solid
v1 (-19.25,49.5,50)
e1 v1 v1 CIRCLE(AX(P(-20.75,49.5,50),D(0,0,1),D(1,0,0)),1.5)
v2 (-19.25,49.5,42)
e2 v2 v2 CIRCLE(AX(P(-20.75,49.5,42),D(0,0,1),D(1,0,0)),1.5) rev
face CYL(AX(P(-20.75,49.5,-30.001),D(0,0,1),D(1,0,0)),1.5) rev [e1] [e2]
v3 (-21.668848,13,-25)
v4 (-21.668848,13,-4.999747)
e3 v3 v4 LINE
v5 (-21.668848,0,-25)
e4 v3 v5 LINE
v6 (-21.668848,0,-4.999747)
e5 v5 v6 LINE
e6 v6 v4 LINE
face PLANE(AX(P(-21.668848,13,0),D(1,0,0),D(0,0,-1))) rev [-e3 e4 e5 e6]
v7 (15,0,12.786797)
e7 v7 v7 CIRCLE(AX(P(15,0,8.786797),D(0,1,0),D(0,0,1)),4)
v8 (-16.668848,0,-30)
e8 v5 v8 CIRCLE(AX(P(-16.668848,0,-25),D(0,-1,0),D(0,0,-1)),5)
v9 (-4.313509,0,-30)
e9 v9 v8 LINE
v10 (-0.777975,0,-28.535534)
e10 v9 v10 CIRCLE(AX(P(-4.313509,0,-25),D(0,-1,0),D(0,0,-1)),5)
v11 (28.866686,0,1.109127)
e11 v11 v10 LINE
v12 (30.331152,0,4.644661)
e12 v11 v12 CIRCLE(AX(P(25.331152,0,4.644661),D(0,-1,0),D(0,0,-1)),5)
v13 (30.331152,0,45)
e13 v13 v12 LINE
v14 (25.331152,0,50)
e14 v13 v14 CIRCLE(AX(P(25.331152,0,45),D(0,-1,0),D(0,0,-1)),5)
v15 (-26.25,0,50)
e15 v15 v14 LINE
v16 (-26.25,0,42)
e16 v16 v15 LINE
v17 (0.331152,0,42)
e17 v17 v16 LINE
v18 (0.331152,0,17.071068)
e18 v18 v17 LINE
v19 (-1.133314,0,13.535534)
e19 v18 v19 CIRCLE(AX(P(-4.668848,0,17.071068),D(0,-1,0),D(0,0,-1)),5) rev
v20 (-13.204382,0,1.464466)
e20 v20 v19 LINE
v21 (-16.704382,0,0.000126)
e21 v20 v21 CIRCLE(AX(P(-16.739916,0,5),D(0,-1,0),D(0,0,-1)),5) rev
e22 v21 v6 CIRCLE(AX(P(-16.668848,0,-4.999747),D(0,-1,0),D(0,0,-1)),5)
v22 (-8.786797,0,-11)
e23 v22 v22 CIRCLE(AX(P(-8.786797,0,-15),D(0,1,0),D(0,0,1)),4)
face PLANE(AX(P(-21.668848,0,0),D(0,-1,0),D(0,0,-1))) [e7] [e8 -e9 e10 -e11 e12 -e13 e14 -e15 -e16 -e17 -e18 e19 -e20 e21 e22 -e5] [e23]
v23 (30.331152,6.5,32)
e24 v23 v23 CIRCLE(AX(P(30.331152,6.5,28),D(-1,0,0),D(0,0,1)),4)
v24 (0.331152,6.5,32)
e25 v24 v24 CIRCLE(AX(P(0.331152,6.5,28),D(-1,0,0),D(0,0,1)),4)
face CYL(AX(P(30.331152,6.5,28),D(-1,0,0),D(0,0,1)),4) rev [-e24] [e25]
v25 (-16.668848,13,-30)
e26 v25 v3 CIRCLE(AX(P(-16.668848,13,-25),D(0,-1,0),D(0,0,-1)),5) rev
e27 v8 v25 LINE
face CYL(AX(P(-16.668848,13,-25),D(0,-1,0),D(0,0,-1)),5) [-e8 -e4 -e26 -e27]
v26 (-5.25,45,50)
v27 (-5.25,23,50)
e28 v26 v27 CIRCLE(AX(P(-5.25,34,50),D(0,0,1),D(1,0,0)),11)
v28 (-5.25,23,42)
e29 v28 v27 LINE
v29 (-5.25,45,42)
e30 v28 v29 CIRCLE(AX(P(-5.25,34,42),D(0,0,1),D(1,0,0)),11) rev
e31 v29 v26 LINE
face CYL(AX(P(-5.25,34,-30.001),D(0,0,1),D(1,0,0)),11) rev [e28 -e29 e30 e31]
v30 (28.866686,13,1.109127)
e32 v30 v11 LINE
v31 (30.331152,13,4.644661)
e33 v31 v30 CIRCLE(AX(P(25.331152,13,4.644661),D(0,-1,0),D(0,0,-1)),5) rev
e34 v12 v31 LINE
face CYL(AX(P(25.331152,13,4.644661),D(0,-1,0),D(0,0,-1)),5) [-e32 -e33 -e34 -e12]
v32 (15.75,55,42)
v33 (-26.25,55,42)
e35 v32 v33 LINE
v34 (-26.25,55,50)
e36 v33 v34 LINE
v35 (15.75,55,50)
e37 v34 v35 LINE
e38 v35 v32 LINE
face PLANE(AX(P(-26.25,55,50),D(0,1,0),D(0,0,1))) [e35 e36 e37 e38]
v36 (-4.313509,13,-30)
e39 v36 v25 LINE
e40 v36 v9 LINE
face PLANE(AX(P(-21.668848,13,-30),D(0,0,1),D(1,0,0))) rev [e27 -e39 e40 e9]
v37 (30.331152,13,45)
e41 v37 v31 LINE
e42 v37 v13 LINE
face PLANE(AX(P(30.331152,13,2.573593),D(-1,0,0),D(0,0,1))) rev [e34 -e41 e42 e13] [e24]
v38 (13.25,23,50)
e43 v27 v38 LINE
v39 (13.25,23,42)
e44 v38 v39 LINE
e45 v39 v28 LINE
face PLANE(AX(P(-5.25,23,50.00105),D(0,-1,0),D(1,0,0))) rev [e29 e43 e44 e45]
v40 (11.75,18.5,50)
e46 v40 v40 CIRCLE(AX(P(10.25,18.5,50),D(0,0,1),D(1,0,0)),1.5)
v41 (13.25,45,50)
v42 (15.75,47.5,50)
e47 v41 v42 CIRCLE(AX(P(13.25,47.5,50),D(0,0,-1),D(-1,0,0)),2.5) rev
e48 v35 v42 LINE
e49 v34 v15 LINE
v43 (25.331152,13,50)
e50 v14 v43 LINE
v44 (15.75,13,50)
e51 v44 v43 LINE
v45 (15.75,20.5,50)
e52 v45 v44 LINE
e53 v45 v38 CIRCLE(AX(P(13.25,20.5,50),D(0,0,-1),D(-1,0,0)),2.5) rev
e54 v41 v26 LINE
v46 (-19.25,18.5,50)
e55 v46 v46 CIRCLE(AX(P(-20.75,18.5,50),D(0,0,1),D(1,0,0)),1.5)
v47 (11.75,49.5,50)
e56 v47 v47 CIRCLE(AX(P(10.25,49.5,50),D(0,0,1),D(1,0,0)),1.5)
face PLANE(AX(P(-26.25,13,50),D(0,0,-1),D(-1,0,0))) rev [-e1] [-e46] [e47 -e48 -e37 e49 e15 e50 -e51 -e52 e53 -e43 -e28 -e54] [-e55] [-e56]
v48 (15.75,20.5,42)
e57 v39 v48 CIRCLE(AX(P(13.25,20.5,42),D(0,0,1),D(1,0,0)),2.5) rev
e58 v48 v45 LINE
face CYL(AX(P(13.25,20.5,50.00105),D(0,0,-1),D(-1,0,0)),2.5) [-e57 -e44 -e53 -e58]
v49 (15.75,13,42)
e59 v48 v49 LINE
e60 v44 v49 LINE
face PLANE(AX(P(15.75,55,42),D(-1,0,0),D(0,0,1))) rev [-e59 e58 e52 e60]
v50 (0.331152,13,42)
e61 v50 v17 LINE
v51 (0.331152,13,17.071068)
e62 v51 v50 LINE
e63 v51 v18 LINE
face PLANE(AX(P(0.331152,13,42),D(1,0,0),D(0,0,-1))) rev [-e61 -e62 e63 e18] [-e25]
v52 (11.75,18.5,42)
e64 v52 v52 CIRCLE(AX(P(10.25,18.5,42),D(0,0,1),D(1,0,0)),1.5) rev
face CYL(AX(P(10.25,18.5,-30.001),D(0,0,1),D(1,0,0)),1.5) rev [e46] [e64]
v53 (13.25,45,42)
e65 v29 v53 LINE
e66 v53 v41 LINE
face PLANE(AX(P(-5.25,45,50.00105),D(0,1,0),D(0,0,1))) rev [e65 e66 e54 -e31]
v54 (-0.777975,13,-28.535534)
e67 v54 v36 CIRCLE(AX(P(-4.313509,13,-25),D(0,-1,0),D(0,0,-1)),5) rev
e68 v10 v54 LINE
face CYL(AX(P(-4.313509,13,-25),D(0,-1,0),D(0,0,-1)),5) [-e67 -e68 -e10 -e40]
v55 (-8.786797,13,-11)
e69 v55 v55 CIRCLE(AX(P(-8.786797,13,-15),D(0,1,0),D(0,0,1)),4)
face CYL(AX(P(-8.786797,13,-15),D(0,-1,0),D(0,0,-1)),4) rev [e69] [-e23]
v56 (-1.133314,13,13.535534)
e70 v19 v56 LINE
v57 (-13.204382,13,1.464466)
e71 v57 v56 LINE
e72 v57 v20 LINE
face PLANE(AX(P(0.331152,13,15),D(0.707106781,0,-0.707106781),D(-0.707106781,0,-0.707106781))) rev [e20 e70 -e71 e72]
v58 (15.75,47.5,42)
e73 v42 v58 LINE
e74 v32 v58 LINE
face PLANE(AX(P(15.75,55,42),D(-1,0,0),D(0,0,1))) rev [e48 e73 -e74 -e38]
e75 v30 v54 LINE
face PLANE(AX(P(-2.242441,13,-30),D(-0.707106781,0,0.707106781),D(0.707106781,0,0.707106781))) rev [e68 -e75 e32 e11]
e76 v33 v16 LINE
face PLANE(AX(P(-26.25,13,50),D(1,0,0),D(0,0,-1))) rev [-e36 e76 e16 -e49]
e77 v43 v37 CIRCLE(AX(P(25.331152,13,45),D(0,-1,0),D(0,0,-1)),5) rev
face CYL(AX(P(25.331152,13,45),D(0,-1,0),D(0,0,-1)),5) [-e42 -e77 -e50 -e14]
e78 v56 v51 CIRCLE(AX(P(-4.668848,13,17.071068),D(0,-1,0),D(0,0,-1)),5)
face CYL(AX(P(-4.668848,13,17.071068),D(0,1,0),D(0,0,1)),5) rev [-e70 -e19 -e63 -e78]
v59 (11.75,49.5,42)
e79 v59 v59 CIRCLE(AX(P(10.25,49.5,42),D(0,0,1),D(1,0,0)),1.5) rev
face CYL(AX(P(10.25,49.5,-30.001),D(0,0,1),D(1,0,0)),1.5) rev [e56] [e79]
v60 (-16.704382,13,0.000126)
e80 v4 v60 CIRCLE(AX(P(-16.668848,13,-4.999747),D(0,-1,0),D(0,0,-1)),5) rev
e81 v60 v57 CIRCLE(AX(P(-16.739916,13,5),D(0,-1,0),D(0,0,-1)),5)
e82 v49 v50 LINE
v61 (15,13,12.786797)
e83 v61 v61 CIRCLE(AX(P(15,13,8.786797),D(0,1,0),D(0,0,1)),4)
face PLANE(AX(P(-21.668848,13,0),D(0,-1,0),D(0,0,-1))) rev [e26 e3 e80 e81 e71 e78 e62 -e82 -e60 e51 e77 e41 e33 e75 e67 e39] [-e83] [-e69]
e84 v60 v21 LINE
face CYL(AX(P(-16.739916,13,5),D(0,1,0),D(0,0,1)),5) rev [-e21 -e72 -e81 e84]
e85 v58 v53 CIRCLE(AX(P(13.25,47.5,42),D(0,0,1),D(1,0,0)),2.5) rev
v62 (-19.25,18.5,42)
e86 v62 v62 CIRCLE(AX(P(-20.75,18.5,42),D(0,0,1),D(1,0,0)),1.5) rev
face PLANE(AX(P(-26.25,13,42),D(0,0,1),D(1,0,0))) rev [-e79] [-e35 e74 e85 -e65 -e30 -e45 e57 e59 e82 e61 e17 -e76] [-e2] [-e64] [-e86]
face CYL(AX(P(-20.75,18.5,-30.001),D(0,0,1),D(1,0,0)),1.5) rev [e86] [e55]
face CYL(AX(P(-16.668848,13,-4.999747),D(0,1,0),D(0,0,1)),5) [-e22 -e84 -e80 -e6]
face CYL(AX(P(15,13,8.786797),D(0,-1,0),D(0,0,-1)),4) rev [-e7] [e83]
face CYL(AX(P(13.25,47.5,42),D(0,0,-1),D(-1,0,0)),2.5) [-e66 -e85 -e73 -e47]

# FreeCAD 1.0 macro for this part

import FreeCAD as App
import Part
import Sketcher

V = App.Vector
Q = App.Units.Quantity


def edges_at(feature, points):
    """Names of the edges that pass closest to the given points."""
    edges = feature.Shape.Edges
    near = lambda p: min(range(len(edges)), key=lambda i: edges[i].distToShape(Part.Vertex(*p))[0])
    return sorted({f"Edge{near(p) + 1}" for p in points})

doc = App.newDocument("Part")
body = doc.addObject("PartDesign::Body", "Body")

# Sketch on XZ plane
sketch1 = body.newObject("Sketcher::SketchObject", "Sketch")
sketch1.AttachmentSupport = (doc.getObject("XZ_Plane"), [""])
sketch1.MapMode = "FlatFace"
sketch1.addGeometry([
    Part.LineSegment(V(-26.25, 50, 0), V(30.331152, 50, 0)),  # 0
    Part.LineSegment(V(30.331152, 50, 0), V(30.331152, 2.573593, 0)),  # 1
    Part.LineSegment(V(30.331152, 2.573593, 0), V(-2.242441, -30, 0)),  # 2
    Part.LineSegment(V(-2.242441, -30, 0), V(-21.668848, -30, 0)),  # 3
    Part.LineSegment(V(-21.668848, -30, 0), V(-21.668848, 0, 0)),  # 4
    Part.LineSegment(V(-21.668848, 0, 0), V(-14.668848, 0, 0)),  # 5
    Part.LineSegment(V(-14.668848, 0, 0), V(0.331152, 15, 0)),  # 6
    Part.LineSegment(V(0.331152, 15, 0), V(0.331152, 42, 0)),  # 7
    Part.LineSegment(V(0.331152, 42, 0), V(-26.25, 42, 0)),  # 8
    Part.LineSegment(V(-26.25, 42, 0), V(-26.25, 50, 0)),  # 9
    Part.Circle(V(15, 8.786797, 0), V(0, 0, 1), 4),  # 10
    Part.Circle(V(-8.786797, -15, 0), V(0, 0, 1), 4),  # 11
], False)
sketch1.addConstraint([
    Sketcher.Constraint("Coincident", 0, 2, 1, 1),
    Sketcher.Constraint("Coincident", 1, 2, 2, 1),
    Sketcher.Constraint("Coincident", 2, 2, 3, 1),
    Sketcher.Constraint("Coincident", 3, 2, 4, 1),
    Sketcher.Constraint("Coincident", 4, 2, 5, 1),
    Sketcher.Constraint("Coincident", 5, 2, 6, 1),
    Sketcher.Constraint("Coincident", 6, 2, 7, 1),
    Sketcher.Constraint("Coincident", 7, 2, 8, 1),
    Sketcher.Constraint("Coincident", 8, 2, 9, 1),
    Sketcher.Constraint("Coincident", 9, 2, 0, 1),
    Sketcher.Constraint("Horizontal", 0),
    Sketcher.Constraint("Vertical", 1),
    Sketcher.Constraint("Horizontal", 3),
    Sketcher.Constraint("Vertical", 4),
    Sketcher.Constraint("Horizontal", 5),
    Sketcher.Constraint("Vertical", 7),
    Sketcher.Constraint("Horizontal", 8),
    Sketcher.Constraint("Vertical", 9),
    Sketcher.Constraint("Equal", 10, 11),
    Sketcher.Constraint("PointOnObject", 4, 2, -1),
    Sketcher.Constraint("Parallel", 2, 6),
    Sketcher.Constraint("Diameter", 10, Q("8 mm")),
    Sketcher.Constraint("DistanceX", 5, 1, 5, 2, Q("7 mm")),
    Sketcher.Constraint("DistanceY", 4, 1, 4, 2, Q("30 mm")),
    Sketcher.Constraint("DistanceY", 7, 1, 7, 2, Q("27 mm")),
    Sketcher.Constraint("DistanceY", 9, 1, 9, 2, Q("8 mm")),
    Sketcher.Constraint("Angle", 2, Q("-135 deg")),
    Sketcher.Constraint("DistanceX", -1, 1, 10, 3, Q("15 mm")),
    Sketcher.Constraint("DistanceY", 11, 3, -1, 1, Q("15 mm")),
    Sketcher.Constraint("DistanceY", -1, 1, 0, 2, Q("50 mm")),
    Sketcher.Constraint("DistanceX", 3, 2, 1, 2, Q("52 mm")),
    Sketcher.Constraint("DistanceX", 8, 2, -1, 1, Q("26.25 mm")),
    Sketcher.Constraint("DistanceX", 0, 1, 0, 2, Q("56.581152 mm")),
    Sketcher.Constraint("DistanceX", 3, 2, 3, 1, Q("19.426407 mm")),
    Sketcher.Constraint("DistanceX", 11, 3, 0, 2, Q("39.117948 mm")),
    Sketcher.Constraint("DistanceY", -1, 1, 10, 3, Q("8.786797 mm")),
])
pad1 = body.newObject("PartDesign::Pad", "Pad")
pad1.Profile = sketch1
pad1.Length = 13
pad1.Reversed = True
doc.recompute()

fillet = body.newObject("PartDesign::Fillet", "Fillet")
fillet.Base = (pad1, edges_at(pad1, [
    (-2.242, 6.5, -30),
    (30.331, 6.5, 2.574),
    (30.331, 6.5, 50),
    (0.331, 6.5, 15),
    (-14.669, 6.5, 0),
]))
fillet.Radius = 5
doc.recompute()

fillet2 = body.newObject("PartDesign::Fillet", "Fillet001")
fillet2.Base = (fillet, edges_at(fillet, [(-21.669, 6.5, 0), (-21.669, 6.5, -30)]))
fillet2.Radius = 5

# Sketch on YZ plane
sketch2 = body.newObject("Sketcher::SketchObject", "Sketch001")
sketch2.AttachmentSupport = (doc.getObject("YZ_Plane"), [""])
sketch2.MapMode = "FlatFace"
sketch2.AttachmentOffset = App.Placement(V(0, 0, 0.331152), App.Rotation())
sketch2.addGeometry(Part.Circle(V(6.5, 28, 0), V(0, 0, 1), 4), False)
sketch2.addConstraint([
    Sketcher.Constraint("Diameter", 0, Q("8 mm")),
    Sketcher.Constraint("DistanceY", -1, 1, 0, 3, Q("28 mm")),
    Sketcher.Constraint("DistanceX", -1, 1, 0, 3, Q("6.5 mm")),
])
pocket1 = body.newObject("PartDesign::Pocket", "Pocket")
pocket1.Profile = sketch2
pocket1.Length = 30
pocket1.Reversed = True

# Sketch on XZ plane
sketch3 = body.newObject("Sketcher::SketchObject", "Sketch002")
sketch3.AttachmentSupport = (doc.getObject("XZ_Plane"), [""])
sketch3.MapMode = "FlatFace"
sketch3.AttachmentOffset = App.Placement(V(0, 0, -13), App.Rotation())
sketch3.addGeometry([
    Part.LineSegment(V(15.75, 50, 0), V(15.75, 42, 0)),
    Part.LineSegment(V(15.75, 42, 0), V(-26.25, 42, 0)),
    Part.LineSegment(V(-26.25, 42, 0), V(-26.25, 50, 0)),
    Part.LineSegment(V(-26.25, 50, 0), V(15.75, 50, 0)),
], False)
sketch3.addConstraint([
    Sketcher.Constraint("Coincident", 0, 2, 1, 1),
    Sketcher.Constraint("Coincident", 1, 2, 2, 1),
    Sketcher.Constraint("Coincident", 2, 2, 3, 1),
    Sketcher.Constraint("Coincident", 3, 2, 0, 1),
    Sketcher.Constraint("Vertical", 0),
    Sketcher.Constraint("Horizontal", 1),
    Sketcher.Constraint("Vertical", 2),
    Sketcher.Constraint("Horizontal", 3),
    Sketcher.Constraint("DistanceX", 1, 2, 1, 1, Q("42 mm")),
    Sketcher.Constraint("DistanceY", 0, 2, 0, 1, Q("8 mm")),
    Sketcher.Constraint("DistanceY", -1, 1, 0, 2, Q("42 mm")),
    Sketcher.Constraint("DistanceX", -1, 1, 0, 2, Q("15.75 mm")),
])
pad2 = body.newObject("PartDesign::Pad", "Pad001")
pad2.Profile = sketch3
pad2.Length = 42
pad2.Reversed = True

# Sketch on XY plane
sketch4 = body.newObject("Sketcher::SketchObject", "Sketch003")
sketch4.AttachmentSupport = (doc.getObject("XY_Plane"), [""])
sketch4.MapMode = "FlatFace"
sketch4.AttachmentOffset = App.Placement(V(0, 0, 50), App.Rotation())
sketch4.addGeometry(Part.Circle(V(-5.25, 34, 0), V(0, 0, 1), 11), False)
sketch4.addConstraint([
    Sketcher.Constraint("Diameter", 0, Q("22 mm")),
    Sketcher.Constraint("DistanceY", -1, 1, 0, 3, Q("34 mm")),
    Sketcher.Constraint("DistanceX", 0, 3, -1, 1, Q("5.25 mm")),
])
pocket2 = body.newObject("PartDesign::Pocket", "Pocket001")
pocket2.Profile = sketch4
pocket2.Type = "UpToFirst"

# Sketch on XY plane
sketch5 = body.newObject("Sketcher::SketchObject", "Sketch004")
sketch5.AttachmentSupport = (doc.getObject("XY_Plane"), [""])
sketch5.MapMode = "FlatFace"
sketch5.AttachmentOffset = App.Placement(V(0, 0, 50), App.Rotation())
sketch5.addGeometry(Part.Circle(V(10.25, 49.5, 0), V(0, 0, 1), 1.5), False)
sketch5.addConstraint([
    Sketcher.Constraint("Diameter", 0, Q("3 mm")),
    Sketcher.Constraint("DistanceY", -1, 1, 0, 3, Q("49.5 mm")),
    Sketcher.Constraint("DistanceX", -1, 1, 0, 3, Q("10.25 mm")),
])
pocket3 = body.newObject("PartDesign::Pocket", "Pocket002")
pocket3.Profile = sketch5
pocket3.Type = "UpToFirst"

# Sketch on XY plane
sketch6 = body.newObject("Sketcher::SketchObject", "Sketch005")
sketch6.AttachmentSupport = (doc.getObject("XY_Plane"), [""])
sketch6.MapMode = "FlatFace"
sketch6.AttachmentOffset = App.Placement(V(0, 0, 50), App.Rotation())
sketch6.addGeometry(Part.Circle(V(-20.75, 49.5, 0), V(0, 0, 1), 1.5), False)
sketch6.addConstraint([
    Sketcher.Constraint("Diameter", 0, Q("3 mm")),
    Sketcher.Constraint("DistanceY", -1, 1, 0, 3, Q("49.5 mm")),
    Sketcher.Constraint("DistanceX", 0, 3, -1, 1, Q("20.75 mm")),
])
pocket4 = body.newObject("PartDesign::Pocket", "Pocket003")
pocket4.Profile = sketch6
pocket4.Type = "UpToFirst"

# Sketch on XY plane
sketch7 = body.newObject("Sketcher::SketchObject", "Sketch006")
sketch7.AttachmentSupport = (doc.getObject("XY_Plane"), [""])
sketch7.MapMode = "FlatFace"
sketch7.AttachmentOffset = App.Placement(V(0, 0, 50), App.Rotation())
sketch7.addGeometry(Part.Circle(V(-20.75, 18.5, 0), V(0, 0, 1), 1.5), False)
sketch7.addConstraint([
    Sketcher.Constraint("Diameter", 0, Q("3 mm")),
    Sketcher.Constraint("DistanceY", -1, 1, 0, 3, Q("18.5 mm")),
    Sketcher.Constraint("DistanceX", 0, 3, -1, 1, Q("20.75 mm")),
])
pocket5 = body.newObject("PartDesign::Pocket", "Pocket004")
pocket5.Profile = sketch7
pocket5.Type = "UpToFirst"

# Sketch on XY plane
sketch8 = body.newObject("Sketcher::SketchObject", "Sketch007")
sketch8.AttachmentSupport = (doc.getObject("XY_Plane"), [""])
sketch8.MapMode = "FlatFace"
sketch8.AttachmentOffset = App.Placement(V(0, 0, 50), App.Rotation())
sketch8.addGeometry(Part.Circle(V(10.25, 18.5, 0), V(0, 0, 1), 1.5), False)
sketch8.addConstraint([
    Sketcher.Constraint("Diameter", 0, Q("3 mm")),
    Sketcher.Constraint("DistanceY", -1, 1, 0, 3, Q("18.5 mm")),
    Sketcher.Constraint("DistanceX", -1, 1, 0, 3, Q("10.25 mm")),
])
pocket6 = body.newObject("PartDesign::Pocket", "Pocket005")
pocket6.Profile = sketch8
pocket6.Type = "UpToFirst"

# Sketch on XY plane
sketch9 = body.newObject("Sketcher::SketchObject", "Sketch008")
sketch9.AttachmentSupport = (doc.getObject("XY_Plane"), [""])
sketch9.MapMode = "FlatFace"
sketch9.AttachmentOffset = App.Placement(V(0, 0, 42), App.Rotation())
sketch9.addGeometry([
    Part.LineSegment(V(15.75, 45, 0), V(15.75, 23, 0)),
    Part.LineSegment(V(15.75, 23, 0), V(-5.25, 23, 0)),
    Part.LineSegment(V(-5.25, 23, 0), V(-5.25, 45, 0)),
    Part.LineSegment(V(-5.25, 45, 0), V(15.75, 45, 0)),
], False)
sketch9.addConstraint([
    Sketcher.Constraint("Coincident", 0, 2, 1, 1),
    Sketcher.Constraint("Coincident", 1, 2, 2, 1),
    Sketcher.Constraint("Coincident", 2, 2, 3, 1),
    Sketcher.Constraint("Coincident", 3, 2, 0, 1),
    Sketcher.Constraint("Vertical", 0),
    Sketcher.Constraint("Horizontal", 1),
    Sketcher.Constraint("Vertical", 2),
    Sketcher.Constraint("Horizontal", 3),
    Sketcher.Constraint("DistanceX", 1, 2, 1, 1, Q("21 mm")),
    Sketcher.Constraint("DistanceY", 0, 2, 0, 1, Q("22 mm")),
    Sketcher.Constraint("DistanceY", -1, 1, 0, 2, Q("23 mm")),
    Sketcher.Constraint("DistanceX", -1, 1, 0, 2, Q("15.75 mm")),
])
pocket7 = body.newObject("PartDesign::Pocket", "Pocket006")
pocket7.Profile = sketch9
pocket7.Length = 8
pocket7.Reversed = True
doc.recompute()

fillet3 = body.newObject("PartDesign::Fillet", "Fillet002")
fillet3.Base = (pocket7, edges_at(pocket7, [(15.75, 23, 46), (15.75, 45, 46)]))
fillet3.Radius = 2.5

doc.recompute()
